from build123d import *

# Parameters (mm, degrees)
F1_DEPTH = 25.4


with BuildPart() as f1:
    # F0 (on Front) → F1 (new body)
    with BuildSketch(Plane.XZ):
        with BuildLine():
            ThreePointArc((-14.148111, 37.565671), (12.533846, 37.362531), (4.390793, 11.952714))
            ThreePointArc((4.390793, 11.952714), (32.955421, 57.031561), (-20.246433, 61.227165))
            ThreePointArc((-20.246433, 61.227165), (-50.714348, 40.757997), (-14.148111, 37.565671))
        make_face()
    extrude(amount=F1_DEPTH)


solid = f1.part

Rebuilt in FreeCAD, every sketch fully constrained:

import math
import FreeCAD as App
import Part
import Sketcher

V = App.Vector
Q = App.Units.Quantity

doc = App.newDocument("Part")
body = doc.addObject("PartDesign::Body", "Body")

# Sketch on XZ plane
sketch1 = body.newObject("Sketcher::SketchObject", "Sketch")
sketch1.AttachmentSupport = (doc.getObject("XZ_Plane"), [""])
sketch1.MapMode = "FlatFace"
sketch1.addGeometry([
    Part.ArcOfCircle(Part.Circle(V(-1, 28, 0), V(0, 0, 1), 17), math.radians(-71), math.radians(143)),
    Part.ArcOfCircle(Part.Circle(V(5, 43, 0), V(0, 0, 1), 31), math.radians(-91), math.radians(144)),
    Part.ArcOfCircle(Part.Circle(V(-32, 46, 0), V(0, 0, 1), 19), math.radians(53), math.radians(336)),
], False)
sketch1.addConstraint([
    Sketcher.Constraint("Coincident", 0, 1, 1, 1),
    Sketcher.Constraint("Coincident", 1, 2, 2, 1),
    Sketcher.Constraint("Coincident", 2, 2, 0, 2),
    Sketcher.Constraint("Radius", 0, 16.56117),
    Sketcher.Constraint("Radius", 2, 19.462411),
    Sketcher.Constraint("Radius", 1, 31.154144),
    Sketcher.Constraint("DistanceX", 1, 2, 0, 3, 19.364598),
    Sketcher.Constraint("DistanceX", 2, 3, -1, 1, 31.867821),
    Sketcher.Constraint("DistanceY", -1, 1, 2, 3, 45.615349),
    Sketcher.Constraint("DistanceX", 2, 2, -1, 1, 14.148111),
    Sketcher.Constraint("DistanceY", 0, 3, 1, 3, 15.446871),
    Sketcher.Constraint("DistanceX", 2, 3, 1, 3, 36.958129),
])
pad1 = body.newObject("PartDesign::Pad", "Pad")
pad1.Profile = sketch1
pad1.Length = Q("1 in")

doc.recompute()
